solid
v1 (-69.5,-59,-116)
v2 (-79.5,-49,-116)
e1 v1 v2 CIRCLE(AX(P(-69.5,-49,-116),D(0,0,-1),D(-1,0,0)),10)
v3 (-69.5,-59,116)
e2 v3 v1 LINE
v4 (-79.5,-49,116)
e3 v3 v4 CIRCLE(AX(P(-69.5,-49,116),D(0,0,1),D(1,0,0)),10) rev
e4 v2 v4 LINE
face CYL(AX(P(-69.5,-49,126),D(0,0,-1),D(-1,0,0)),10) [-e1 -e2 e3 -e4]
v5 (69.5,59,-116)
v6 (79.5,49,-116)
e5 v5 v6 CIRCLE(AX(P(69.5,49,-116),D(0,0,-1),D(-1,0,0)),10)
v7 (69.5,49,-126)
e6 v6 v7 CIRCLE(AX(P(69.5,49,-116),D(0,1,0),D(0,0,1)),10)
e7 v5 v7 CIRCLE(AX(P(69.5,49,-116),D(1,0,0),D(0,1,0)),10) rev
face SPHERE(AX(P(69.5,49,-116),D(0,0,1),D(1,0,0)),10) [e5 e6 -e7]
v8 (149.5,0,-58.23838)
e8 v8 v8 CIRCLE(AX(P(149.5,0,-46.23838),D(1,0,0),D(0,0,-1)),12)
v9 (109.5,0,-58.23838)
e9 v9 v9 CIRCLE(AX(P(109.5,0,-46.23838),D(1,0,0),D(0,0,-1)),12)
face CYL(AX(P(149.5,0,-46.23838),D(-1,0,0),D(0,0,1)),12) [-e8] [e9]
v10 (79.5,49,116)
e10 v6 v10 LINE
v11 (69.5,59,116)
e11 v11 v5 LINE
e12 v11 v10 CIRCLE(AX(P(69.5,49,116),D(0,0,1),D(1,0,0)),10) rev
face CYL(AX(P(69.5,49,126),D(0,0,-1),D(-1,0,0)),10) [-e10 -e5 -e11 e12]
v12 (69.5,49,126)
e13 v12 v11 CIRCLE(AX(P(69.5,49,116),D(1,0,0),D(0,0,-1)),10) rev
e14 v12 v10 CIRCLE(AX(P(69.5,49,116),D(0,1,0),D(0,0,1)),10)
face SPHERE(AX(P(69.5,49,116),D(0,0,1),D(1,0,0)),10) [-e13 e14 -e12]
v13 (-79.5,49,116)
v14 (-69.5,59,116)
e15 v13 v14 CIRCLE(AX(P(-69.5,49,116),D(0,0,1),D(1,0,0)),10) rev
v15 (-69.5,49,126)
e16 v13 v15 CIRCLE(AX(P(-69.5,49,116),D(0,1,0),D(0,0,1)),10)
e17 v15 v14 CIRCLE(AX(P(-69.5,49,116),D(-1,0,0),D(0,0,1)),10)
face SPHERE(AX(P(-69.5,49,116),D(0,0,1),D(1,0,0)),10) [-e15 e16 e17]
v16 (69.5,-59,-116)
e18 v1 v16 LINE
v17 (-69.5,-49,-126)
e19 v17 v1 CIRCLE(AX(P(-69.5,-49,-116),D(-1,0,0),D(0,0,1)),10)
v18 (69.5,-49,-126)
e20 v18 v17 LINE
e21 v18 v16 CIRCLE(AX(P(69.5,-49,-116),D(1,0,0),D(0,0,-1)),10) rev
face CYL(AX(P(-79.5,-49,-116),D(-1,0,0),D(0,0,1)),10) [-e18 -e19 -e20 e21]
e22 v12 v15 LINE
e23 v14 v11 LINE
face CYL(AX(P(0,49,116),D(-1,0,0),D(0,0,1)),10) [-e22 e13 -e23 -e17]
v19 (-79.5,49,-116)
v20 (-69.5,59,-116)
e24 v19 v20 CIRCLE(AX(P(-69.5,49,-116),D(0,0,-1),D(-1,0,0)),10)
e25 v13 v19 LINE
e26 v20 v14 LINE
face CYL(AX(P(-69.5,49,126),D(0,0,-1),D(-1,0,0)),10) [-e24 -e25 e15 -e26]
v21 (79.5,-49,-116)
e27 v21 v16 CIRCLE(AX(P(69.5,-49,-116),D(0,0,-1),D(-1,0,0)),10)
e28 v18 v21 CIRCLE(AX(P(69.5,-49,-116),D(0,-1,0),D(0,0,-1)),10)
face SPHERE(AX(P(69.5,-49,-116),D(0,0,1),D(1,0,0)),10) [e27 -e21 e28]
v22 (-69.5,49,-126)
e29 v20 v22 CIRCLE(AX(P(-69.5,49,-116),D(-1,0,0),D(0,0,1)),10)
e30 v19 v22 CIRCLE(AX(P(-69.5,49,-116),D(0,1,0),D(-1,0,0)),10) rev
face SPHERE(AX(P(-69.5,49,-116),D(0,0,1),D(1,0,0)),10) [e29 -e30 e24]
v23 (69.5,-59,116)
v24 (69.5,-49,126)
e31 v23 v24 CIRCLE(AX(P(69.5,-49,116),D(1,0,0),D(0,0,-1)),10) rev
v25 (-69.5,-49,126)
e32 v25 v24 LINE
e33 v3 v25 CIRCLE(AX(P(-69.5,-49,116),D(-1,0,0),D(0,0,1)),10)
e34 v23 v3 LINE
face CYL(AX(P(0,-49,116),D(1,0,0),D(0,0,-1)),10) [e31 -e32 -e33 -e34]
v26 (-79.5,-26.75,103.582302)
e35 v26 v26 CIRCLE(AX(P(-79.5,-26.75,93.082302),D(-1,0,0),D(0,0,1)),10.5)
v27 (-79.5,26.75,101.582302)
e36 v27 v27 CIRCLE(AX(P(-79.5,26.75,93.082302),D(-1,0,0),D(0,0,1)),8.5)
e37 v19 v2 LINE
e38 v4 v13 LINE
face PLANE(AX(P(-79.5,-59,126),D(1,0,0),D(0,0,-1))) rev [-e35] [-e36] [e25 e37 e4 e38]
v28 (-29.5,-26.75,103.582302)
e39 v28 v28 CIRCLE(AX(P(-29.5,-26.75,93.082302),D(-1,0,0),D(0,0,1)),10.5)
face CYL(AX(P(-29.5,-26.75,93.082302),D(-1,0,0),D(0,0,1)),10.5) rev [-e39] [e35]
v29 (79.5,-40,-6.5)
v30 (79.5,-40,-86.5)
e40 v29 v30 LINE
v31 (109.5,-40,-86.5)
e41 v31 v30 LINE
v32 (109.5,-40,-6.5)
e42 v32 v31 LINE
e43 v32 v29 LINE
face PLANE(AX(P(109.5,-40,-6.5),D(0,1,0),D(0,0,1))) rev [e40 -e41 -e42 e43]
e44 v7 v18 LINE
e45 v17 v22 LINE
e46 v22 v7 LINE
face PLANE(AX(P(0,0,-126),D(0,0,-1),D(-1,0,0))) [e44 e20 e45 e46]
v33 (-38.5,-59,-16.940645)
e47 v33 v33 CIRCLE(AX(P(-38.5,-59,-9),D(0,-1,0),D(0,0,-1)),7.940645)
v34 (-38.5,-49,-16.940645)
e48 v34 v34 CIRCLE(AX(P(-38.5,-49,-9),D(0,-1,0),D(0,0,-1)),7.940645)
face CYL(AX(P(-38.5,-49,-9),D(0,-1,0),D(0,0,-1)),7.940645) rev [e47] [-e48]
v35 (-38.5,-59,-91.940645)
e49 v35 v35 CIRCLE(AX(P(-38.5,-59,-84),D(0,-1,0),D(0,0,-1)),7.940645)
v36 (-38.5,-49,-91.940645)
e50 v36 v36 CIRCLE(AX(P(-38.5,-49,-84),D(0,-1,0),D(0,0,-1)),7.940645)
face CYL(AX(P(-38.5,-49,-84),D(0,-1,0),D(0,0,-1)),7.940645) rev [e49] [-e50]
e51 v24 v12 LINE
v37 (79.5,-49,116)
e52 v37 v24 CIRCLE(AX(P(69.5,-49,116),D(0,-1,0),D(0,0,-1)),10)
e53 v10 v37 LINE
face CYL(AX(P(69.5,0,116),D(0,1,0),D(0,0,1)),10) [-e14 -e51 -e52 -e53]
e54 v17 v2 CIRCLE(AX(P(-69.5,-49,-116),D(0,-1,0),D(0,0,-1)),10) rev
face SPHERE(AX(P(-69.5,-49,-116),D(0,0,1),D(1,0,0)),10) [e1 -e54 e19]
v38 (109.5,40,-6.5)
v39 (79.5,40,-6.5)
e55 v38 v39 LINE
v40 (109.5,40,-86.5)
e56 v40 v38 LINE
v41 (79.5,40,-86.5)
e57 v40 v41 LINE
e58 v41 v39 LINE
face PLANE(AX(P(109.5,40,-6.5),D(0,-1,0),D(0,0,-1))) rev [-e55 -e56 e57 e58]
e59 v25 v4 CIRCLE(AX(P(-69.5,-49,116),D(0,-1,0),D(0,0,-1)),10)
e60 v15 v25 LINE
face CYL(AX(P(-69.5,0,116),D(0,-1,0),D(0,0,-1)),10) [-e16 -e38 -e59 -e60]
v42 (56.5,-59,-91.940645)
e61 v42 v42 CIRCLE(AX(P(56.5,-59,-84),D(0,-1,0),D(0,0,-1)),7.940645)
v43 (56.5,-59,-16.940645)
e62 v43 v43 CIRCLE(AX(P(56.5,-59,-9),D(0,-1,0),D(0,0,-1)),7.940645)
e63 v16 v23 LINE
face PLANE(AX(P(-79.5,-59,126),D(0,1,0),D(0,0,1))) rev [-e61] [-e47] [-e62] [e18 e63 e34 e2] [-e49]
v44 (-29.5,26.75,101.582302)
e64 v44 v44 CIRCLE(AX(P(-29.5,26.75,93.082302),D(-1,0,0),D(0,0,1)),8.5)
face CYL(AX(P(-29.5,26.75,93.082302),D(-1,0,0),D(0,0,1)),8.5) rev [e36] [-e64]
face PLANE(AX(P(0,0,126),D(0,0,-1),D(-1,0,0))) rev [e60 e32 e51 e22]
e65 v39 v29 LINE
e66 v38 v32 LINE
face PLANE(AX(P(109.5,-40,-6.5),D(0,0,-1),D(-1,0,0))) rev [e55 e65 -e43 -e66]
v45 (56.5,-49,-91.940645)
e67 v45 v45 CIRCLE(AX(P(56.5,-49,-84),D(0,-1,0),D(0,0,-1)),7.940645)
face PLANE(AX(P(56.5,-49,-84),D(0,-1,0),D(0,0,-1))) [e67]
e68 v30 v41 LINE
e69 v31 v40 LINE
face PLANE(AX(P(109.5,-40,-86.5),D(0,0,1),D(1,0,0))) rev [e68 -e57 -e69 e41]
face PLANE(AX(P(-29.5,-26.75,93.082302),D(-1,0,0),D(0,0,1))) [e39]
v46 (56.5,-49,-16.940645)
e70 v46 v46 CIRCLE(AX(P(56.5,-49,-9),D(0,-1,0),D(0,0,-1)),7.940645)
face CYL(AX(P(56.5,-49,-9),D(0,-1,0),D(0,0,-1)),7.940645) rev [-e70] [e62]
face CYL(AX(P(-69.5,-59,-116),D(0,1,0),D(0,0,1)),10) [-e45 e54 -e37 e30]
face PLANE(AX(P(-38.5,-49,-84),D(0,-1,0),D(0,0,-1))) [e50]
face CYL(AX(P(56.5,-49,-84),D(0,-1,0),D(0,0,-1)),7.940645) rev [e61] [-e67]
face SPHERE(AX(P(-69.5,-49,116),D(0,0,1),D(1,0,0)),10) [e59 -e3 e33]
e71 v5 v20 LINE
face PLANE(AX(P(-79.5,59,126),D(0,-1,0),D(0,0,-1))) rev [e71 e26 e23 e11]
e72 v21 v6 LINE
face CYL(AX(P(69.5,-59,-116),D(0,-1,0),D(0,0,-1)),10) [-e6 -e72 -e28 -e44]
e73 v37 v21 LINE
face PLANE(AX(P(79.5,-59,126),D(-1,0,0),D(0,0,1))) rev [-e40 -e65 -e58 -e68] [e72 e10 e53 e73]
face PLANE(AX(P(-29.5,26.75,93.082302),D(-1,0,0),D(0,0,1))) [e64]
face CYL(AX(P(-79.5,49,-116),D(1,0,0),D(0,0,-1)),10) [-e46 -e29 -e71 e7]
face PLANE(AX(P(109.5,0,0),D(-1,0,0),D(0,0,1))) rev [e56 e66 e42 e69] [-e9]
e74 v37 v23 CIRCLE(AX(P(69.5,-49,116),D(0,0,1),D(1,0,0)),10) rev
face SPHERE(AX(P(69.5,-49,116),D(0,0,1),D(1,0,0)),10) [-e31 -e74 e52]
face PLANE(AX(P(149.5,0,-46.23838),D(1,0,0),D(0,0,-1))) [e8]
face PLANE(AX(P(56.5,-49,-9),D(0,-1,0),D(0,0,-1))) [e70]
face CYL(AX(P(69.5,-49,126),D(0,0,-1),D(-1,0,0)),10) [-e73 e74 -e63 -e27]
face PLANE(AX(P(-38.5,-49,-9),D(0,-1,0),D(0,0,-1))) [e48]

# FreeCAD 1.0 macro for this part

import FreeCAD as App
import Part
import Sketcher

V = App.Vector
Q = App.Units.Quantity

doc = App.newDocument("Part")
body = doc.addObject("PartDesign::Body", "Body")

# Sketch on XY plane
sketch1 = doc.addObject("Sketcher::SketchObject", "Sketch")
body.addObject(sketch1)
sketch1.AttachmentSupport = (doc.XY_Plane, [""])
sketch1.MapMode = "FlatFace"
sketch1.addGeometry(Part.LineSegment(V(-80, 59, 0), V(-80, -59, 0)), False)
sketch1.addGeometry(Part.LineSegment(V(-80, -59, 0), V(80, -59, 0)), False)
sketch1.addGeometry(Part.LineSegment(V(80, -59, 0), V(80, 59, 0)), False)
sketch1.addGeometry(Part.LineSegment(V(80, 59, 0), V(-80, 59, 0)), False)
sketch1.addConstraint(Sketcher.Constraint("Coincident", 0, 2, 1, 1))
sketch1.addConstraint(Sketcher.Constraint("Coincident", 1, 2, 2, 1))
sketch1.addConstraint(Sketcher.Constraint("Coincident", 2, 2, 3, 1))
sketch1.addConstraint(Sketcher.Constraint("Coincident", 3, 2, 0, 1))
sketch1.addConstraint(Sketcher.Constraint("Vertical", 0))
sketch1.addConstraint(Sketcher.Constraint("Horizontal", 1))
sketch1.addConstraint(Sketcher.Constraint("Vertical", 2))
sketch1.addConstraint(Sketcher.Constraint("Horizontal", 3))
sketch1.addConstraint(Sketcher.Constraint("Symmetric", 0, 2, 2, 2, -1, 1))
sketch1.addConstraint(Sketcher.Constraint("DistanceX", 1, 1, 1, 2, Q("159 mm")))
sketch1.addConstraint(Sketcher.Constraint("DistanceY", 0, 2, 0, 1, Q("118 mm")))
pad1 = doc.addObject("PartDesign::Pad", "Pad")
body.addObject(pad1)
pad1.Profile = sketch1
pad1.Length = 252
pad1.Midplane = True
doc.recompute()

fillet = doc.addObject("PartDesign::Fillet", "Fillet")
body.addObject(fillet)
fillet.Base = (pad1, ["Edge1"])
fillet.UseAllEdges = True
fillet.Radius = 10

# Sketch on YZ plane
sketch2 = doc.addObject("Sketcher::SketchObject", "Sketch001")
body.addObject(sketch2)
sketch2.AttachmentSupport = (doc.YZ_Plane, [""])
sketch2.MapMode = "FlatFace"
sketch2.AttachmentOffset = App.Placement(V(0, 0, 79.5), App.Rotation())
sketch2.addGeometry(Part.LineSegment(V(40, -6, 0), V(-40, -6, 0)), False)
sketch2.addGeometry(Part.LineSegment(V(-40, -6, 0), V(-40, -86, 0)), False)
sketch2.addGeometry(Part.LineSegment(V(-40, -86, 0), V(40, -86, 0)), False)
sketch2.addGeometry(Part.LineSegment(V(40, -86, 0), V(40, -6, 0)), False)
sketch2.addConstraint(Sketcher.Constraint("Coincident", 0, 2, 1, 1))
sketch2.addConstraint(Sketcher.Constraint("Coincident", 1, 2, 2, 1))
sketch2.addConstraint(Sketcher.Constraint("Coincident", 2, 2, 3, 1))
sketch2.addConstraint(Sketcher.Constraint("Coincident", 3, 2, 0, 1))
sketch2.addConstraint(Sketcher.Constraint("Horizontal", 0))
sketch2.addConstraint(Sketcher.Constraint("Vertical", 1))
sketch2.addConstraint(Sketcher.Constraint("Horizontal", 2))
sketch2.addConstraint(Sketcher.Constraint("Vertical", 3))
sketch2.addConstraint(Sketcher.Constraint("Equal", 2, 1))
sketch2.addConstraint(Sketcher.Constraint("DistanceX", 0, 2, 0, 1, Q("80 mm")))
sketch2.addConstraint(Sketcher.Constraint("DistanceX", 0, 2, -1, 1, Q("40 mm")))
sketch2.addConstraint(Sketcher.Constraint("DistanceY", 0, 2, -1, 1, Q("6.5 mm")))
pad2 = doc.addObject("PartDesign::Pad", "Pad001")
body.addObject(pad2)
pad2.Profile = sketch2
pad2.Length = 30

# Sketch on YZ plane
sketch3 = doc.addObject("Sketcher::SketchObject", "Sketch002")
body.addObject(sketch3)
sketch3.AttachmentSupport = (doc.YZ_Plane, [""])
sketch3.MapMode = "FlatFace"
sketch3.AttachmentOffset = App.Placement(V(0, 0, 109.5), App.Rotation())
sketch3.addGeometry(Part.Circle(V(0, -46, 0), V(0, 0, 1), 12), False)
sketch3.addConstraint(Sketcher.Constraint("PointOnObject", 0, 3, -2))
sketch3.addConstraint(Sketcher.Constraint("Diameter", 0, Q("24 mm")))
sketch3.addConstraint(Sketcher.Constraint("DistanceY", 0, 3, -1, 1, Q("46.23838 mm")))
pad3 = doc.addObject("PartDesign::Pad", "Pad002")
body.addObject(pad3)
pad3.Profile = sketch3
pad3.Length = 40

# Sketch on YZ plane
sketch4 = doc.addObject("Sketcher::SketchObject", "Sketch003")
body.addObject(sketch4)
sketch4.AttachmentSupport = (doc.YZ_Plane, [""])
sketch4.MapMode = "FlatFace"
sketch4.AttachmentOffset = App.Placement(V(0, 0, -79.5), App.Rotation())
sketch4.addGeometry(Part.Circle(V(27, 93, 0), V(0, 0, 1), 8), False)
sketch4.addGeometry(Part.Circle(V(-27, 93, 0), V(0, 0, 1), 10), False)
sketch4.addConstraint(Sketcher.Constraint("Symmetric", 0, 3, 1, 3, -2))
sketch4.addConstraint(Sketcher.Constraint("Diameter", 0, Q("17 mm")))
sketch4.addConstraint(Sketcher.Constraint("Diameter", 1, Q("21 mm")))
sketch4.addConstraint(Sketcher.Constraint("DistanceX", 1, 3, 0, 3, Q("53.5 mm")))
sketch4.addConstraint(Sketcher.Constraint("DistanceY", -1, 1, 0, 3, Q("93.082302 mm")))
pocket1 = doc.addObject("PartDesign::Pocket", "Pocket")
body.addObject(pocket1)
pocket1.Profile = sketch4
pocket1.Length = 50
pocket1.Reversed = True

# Sketch on XZ plane
sketch5 = doc.addObject("Sketcher::SketchObject", "Sketch004")
body.addObject(sketch5)
sketch5.AttachmentSupport = (doc.XZ_Plane, [""])
sketch5.MapMode = "FlatFace"
sketch5.AttachmentOffset = App.Placement(V(0, 0, 59), App.Rotation())
sketch5.addGeometry(Part.Circle(V(-38, -84, 0), V(0, 0, 1), 8), False)
sketch5.addGeometry(Part.Circle(V(56, -84, 0), V(0, 0, 1), 8), False)
sketch5.addGeometry(Part.Circle(V(56, -9, 0), V(0, 0, 1), 8), False)
sketch5.addGeometry(Part.Circle(V(-38, -9, 0), V(0, 0, 1), 8), False)
sketch5.addConstraint(Sketcher.Constraint("Equal", 0, 1))
sketch5.addConstraint(Sketcher.Constraint("Equal", 1, 2))
sketch5.addConstraint(Sketcher.Constraint("Equal", 2, 3))
sketch5.addConstraint(Sketcher.Constraint("Horizontal", 0, 3, 1, 3))
sketch5.addConstraint(Sketcher.Constraint("Horizontal", 2, 3, 3, 3))
sketch5.addConstraint(Sketcher.Constraint("Vertical", 1, 3, 2, 3))
sketch5.addConstraint(Sketcher.Constraint("Vertical", 0, 3, 3, 3))
sketch5.addConstraint(Sketcher.Constraint("DistanceY", 0, 3, -1, 1, Q("84 mm")))
sketch5.addConstraint(Sketcher.Constraint("DistanceY", 2, 3, -1, 1, Q("9 mm")))
sketch5.addConstraint(Sketcher.Constraint("DistanceX", 0, 3, 1, 3, Q("95 mm")))
sketch5.addConstraint(Sketcher.Constraint("DistanceX", 0, 3, -1, 1, Q("38.5 mm")))
sketch5.addConstraint(Sketcher.Constraint("Diameter", 0, Q("15.881291 mm")))
pocket2 = doc.addObject("PartDesign::Pocket", "Pocket001")
body.addObject(pocket2)
pocket2.Profile = sketch5
pocket2.Length = 10

doc.recompute()
